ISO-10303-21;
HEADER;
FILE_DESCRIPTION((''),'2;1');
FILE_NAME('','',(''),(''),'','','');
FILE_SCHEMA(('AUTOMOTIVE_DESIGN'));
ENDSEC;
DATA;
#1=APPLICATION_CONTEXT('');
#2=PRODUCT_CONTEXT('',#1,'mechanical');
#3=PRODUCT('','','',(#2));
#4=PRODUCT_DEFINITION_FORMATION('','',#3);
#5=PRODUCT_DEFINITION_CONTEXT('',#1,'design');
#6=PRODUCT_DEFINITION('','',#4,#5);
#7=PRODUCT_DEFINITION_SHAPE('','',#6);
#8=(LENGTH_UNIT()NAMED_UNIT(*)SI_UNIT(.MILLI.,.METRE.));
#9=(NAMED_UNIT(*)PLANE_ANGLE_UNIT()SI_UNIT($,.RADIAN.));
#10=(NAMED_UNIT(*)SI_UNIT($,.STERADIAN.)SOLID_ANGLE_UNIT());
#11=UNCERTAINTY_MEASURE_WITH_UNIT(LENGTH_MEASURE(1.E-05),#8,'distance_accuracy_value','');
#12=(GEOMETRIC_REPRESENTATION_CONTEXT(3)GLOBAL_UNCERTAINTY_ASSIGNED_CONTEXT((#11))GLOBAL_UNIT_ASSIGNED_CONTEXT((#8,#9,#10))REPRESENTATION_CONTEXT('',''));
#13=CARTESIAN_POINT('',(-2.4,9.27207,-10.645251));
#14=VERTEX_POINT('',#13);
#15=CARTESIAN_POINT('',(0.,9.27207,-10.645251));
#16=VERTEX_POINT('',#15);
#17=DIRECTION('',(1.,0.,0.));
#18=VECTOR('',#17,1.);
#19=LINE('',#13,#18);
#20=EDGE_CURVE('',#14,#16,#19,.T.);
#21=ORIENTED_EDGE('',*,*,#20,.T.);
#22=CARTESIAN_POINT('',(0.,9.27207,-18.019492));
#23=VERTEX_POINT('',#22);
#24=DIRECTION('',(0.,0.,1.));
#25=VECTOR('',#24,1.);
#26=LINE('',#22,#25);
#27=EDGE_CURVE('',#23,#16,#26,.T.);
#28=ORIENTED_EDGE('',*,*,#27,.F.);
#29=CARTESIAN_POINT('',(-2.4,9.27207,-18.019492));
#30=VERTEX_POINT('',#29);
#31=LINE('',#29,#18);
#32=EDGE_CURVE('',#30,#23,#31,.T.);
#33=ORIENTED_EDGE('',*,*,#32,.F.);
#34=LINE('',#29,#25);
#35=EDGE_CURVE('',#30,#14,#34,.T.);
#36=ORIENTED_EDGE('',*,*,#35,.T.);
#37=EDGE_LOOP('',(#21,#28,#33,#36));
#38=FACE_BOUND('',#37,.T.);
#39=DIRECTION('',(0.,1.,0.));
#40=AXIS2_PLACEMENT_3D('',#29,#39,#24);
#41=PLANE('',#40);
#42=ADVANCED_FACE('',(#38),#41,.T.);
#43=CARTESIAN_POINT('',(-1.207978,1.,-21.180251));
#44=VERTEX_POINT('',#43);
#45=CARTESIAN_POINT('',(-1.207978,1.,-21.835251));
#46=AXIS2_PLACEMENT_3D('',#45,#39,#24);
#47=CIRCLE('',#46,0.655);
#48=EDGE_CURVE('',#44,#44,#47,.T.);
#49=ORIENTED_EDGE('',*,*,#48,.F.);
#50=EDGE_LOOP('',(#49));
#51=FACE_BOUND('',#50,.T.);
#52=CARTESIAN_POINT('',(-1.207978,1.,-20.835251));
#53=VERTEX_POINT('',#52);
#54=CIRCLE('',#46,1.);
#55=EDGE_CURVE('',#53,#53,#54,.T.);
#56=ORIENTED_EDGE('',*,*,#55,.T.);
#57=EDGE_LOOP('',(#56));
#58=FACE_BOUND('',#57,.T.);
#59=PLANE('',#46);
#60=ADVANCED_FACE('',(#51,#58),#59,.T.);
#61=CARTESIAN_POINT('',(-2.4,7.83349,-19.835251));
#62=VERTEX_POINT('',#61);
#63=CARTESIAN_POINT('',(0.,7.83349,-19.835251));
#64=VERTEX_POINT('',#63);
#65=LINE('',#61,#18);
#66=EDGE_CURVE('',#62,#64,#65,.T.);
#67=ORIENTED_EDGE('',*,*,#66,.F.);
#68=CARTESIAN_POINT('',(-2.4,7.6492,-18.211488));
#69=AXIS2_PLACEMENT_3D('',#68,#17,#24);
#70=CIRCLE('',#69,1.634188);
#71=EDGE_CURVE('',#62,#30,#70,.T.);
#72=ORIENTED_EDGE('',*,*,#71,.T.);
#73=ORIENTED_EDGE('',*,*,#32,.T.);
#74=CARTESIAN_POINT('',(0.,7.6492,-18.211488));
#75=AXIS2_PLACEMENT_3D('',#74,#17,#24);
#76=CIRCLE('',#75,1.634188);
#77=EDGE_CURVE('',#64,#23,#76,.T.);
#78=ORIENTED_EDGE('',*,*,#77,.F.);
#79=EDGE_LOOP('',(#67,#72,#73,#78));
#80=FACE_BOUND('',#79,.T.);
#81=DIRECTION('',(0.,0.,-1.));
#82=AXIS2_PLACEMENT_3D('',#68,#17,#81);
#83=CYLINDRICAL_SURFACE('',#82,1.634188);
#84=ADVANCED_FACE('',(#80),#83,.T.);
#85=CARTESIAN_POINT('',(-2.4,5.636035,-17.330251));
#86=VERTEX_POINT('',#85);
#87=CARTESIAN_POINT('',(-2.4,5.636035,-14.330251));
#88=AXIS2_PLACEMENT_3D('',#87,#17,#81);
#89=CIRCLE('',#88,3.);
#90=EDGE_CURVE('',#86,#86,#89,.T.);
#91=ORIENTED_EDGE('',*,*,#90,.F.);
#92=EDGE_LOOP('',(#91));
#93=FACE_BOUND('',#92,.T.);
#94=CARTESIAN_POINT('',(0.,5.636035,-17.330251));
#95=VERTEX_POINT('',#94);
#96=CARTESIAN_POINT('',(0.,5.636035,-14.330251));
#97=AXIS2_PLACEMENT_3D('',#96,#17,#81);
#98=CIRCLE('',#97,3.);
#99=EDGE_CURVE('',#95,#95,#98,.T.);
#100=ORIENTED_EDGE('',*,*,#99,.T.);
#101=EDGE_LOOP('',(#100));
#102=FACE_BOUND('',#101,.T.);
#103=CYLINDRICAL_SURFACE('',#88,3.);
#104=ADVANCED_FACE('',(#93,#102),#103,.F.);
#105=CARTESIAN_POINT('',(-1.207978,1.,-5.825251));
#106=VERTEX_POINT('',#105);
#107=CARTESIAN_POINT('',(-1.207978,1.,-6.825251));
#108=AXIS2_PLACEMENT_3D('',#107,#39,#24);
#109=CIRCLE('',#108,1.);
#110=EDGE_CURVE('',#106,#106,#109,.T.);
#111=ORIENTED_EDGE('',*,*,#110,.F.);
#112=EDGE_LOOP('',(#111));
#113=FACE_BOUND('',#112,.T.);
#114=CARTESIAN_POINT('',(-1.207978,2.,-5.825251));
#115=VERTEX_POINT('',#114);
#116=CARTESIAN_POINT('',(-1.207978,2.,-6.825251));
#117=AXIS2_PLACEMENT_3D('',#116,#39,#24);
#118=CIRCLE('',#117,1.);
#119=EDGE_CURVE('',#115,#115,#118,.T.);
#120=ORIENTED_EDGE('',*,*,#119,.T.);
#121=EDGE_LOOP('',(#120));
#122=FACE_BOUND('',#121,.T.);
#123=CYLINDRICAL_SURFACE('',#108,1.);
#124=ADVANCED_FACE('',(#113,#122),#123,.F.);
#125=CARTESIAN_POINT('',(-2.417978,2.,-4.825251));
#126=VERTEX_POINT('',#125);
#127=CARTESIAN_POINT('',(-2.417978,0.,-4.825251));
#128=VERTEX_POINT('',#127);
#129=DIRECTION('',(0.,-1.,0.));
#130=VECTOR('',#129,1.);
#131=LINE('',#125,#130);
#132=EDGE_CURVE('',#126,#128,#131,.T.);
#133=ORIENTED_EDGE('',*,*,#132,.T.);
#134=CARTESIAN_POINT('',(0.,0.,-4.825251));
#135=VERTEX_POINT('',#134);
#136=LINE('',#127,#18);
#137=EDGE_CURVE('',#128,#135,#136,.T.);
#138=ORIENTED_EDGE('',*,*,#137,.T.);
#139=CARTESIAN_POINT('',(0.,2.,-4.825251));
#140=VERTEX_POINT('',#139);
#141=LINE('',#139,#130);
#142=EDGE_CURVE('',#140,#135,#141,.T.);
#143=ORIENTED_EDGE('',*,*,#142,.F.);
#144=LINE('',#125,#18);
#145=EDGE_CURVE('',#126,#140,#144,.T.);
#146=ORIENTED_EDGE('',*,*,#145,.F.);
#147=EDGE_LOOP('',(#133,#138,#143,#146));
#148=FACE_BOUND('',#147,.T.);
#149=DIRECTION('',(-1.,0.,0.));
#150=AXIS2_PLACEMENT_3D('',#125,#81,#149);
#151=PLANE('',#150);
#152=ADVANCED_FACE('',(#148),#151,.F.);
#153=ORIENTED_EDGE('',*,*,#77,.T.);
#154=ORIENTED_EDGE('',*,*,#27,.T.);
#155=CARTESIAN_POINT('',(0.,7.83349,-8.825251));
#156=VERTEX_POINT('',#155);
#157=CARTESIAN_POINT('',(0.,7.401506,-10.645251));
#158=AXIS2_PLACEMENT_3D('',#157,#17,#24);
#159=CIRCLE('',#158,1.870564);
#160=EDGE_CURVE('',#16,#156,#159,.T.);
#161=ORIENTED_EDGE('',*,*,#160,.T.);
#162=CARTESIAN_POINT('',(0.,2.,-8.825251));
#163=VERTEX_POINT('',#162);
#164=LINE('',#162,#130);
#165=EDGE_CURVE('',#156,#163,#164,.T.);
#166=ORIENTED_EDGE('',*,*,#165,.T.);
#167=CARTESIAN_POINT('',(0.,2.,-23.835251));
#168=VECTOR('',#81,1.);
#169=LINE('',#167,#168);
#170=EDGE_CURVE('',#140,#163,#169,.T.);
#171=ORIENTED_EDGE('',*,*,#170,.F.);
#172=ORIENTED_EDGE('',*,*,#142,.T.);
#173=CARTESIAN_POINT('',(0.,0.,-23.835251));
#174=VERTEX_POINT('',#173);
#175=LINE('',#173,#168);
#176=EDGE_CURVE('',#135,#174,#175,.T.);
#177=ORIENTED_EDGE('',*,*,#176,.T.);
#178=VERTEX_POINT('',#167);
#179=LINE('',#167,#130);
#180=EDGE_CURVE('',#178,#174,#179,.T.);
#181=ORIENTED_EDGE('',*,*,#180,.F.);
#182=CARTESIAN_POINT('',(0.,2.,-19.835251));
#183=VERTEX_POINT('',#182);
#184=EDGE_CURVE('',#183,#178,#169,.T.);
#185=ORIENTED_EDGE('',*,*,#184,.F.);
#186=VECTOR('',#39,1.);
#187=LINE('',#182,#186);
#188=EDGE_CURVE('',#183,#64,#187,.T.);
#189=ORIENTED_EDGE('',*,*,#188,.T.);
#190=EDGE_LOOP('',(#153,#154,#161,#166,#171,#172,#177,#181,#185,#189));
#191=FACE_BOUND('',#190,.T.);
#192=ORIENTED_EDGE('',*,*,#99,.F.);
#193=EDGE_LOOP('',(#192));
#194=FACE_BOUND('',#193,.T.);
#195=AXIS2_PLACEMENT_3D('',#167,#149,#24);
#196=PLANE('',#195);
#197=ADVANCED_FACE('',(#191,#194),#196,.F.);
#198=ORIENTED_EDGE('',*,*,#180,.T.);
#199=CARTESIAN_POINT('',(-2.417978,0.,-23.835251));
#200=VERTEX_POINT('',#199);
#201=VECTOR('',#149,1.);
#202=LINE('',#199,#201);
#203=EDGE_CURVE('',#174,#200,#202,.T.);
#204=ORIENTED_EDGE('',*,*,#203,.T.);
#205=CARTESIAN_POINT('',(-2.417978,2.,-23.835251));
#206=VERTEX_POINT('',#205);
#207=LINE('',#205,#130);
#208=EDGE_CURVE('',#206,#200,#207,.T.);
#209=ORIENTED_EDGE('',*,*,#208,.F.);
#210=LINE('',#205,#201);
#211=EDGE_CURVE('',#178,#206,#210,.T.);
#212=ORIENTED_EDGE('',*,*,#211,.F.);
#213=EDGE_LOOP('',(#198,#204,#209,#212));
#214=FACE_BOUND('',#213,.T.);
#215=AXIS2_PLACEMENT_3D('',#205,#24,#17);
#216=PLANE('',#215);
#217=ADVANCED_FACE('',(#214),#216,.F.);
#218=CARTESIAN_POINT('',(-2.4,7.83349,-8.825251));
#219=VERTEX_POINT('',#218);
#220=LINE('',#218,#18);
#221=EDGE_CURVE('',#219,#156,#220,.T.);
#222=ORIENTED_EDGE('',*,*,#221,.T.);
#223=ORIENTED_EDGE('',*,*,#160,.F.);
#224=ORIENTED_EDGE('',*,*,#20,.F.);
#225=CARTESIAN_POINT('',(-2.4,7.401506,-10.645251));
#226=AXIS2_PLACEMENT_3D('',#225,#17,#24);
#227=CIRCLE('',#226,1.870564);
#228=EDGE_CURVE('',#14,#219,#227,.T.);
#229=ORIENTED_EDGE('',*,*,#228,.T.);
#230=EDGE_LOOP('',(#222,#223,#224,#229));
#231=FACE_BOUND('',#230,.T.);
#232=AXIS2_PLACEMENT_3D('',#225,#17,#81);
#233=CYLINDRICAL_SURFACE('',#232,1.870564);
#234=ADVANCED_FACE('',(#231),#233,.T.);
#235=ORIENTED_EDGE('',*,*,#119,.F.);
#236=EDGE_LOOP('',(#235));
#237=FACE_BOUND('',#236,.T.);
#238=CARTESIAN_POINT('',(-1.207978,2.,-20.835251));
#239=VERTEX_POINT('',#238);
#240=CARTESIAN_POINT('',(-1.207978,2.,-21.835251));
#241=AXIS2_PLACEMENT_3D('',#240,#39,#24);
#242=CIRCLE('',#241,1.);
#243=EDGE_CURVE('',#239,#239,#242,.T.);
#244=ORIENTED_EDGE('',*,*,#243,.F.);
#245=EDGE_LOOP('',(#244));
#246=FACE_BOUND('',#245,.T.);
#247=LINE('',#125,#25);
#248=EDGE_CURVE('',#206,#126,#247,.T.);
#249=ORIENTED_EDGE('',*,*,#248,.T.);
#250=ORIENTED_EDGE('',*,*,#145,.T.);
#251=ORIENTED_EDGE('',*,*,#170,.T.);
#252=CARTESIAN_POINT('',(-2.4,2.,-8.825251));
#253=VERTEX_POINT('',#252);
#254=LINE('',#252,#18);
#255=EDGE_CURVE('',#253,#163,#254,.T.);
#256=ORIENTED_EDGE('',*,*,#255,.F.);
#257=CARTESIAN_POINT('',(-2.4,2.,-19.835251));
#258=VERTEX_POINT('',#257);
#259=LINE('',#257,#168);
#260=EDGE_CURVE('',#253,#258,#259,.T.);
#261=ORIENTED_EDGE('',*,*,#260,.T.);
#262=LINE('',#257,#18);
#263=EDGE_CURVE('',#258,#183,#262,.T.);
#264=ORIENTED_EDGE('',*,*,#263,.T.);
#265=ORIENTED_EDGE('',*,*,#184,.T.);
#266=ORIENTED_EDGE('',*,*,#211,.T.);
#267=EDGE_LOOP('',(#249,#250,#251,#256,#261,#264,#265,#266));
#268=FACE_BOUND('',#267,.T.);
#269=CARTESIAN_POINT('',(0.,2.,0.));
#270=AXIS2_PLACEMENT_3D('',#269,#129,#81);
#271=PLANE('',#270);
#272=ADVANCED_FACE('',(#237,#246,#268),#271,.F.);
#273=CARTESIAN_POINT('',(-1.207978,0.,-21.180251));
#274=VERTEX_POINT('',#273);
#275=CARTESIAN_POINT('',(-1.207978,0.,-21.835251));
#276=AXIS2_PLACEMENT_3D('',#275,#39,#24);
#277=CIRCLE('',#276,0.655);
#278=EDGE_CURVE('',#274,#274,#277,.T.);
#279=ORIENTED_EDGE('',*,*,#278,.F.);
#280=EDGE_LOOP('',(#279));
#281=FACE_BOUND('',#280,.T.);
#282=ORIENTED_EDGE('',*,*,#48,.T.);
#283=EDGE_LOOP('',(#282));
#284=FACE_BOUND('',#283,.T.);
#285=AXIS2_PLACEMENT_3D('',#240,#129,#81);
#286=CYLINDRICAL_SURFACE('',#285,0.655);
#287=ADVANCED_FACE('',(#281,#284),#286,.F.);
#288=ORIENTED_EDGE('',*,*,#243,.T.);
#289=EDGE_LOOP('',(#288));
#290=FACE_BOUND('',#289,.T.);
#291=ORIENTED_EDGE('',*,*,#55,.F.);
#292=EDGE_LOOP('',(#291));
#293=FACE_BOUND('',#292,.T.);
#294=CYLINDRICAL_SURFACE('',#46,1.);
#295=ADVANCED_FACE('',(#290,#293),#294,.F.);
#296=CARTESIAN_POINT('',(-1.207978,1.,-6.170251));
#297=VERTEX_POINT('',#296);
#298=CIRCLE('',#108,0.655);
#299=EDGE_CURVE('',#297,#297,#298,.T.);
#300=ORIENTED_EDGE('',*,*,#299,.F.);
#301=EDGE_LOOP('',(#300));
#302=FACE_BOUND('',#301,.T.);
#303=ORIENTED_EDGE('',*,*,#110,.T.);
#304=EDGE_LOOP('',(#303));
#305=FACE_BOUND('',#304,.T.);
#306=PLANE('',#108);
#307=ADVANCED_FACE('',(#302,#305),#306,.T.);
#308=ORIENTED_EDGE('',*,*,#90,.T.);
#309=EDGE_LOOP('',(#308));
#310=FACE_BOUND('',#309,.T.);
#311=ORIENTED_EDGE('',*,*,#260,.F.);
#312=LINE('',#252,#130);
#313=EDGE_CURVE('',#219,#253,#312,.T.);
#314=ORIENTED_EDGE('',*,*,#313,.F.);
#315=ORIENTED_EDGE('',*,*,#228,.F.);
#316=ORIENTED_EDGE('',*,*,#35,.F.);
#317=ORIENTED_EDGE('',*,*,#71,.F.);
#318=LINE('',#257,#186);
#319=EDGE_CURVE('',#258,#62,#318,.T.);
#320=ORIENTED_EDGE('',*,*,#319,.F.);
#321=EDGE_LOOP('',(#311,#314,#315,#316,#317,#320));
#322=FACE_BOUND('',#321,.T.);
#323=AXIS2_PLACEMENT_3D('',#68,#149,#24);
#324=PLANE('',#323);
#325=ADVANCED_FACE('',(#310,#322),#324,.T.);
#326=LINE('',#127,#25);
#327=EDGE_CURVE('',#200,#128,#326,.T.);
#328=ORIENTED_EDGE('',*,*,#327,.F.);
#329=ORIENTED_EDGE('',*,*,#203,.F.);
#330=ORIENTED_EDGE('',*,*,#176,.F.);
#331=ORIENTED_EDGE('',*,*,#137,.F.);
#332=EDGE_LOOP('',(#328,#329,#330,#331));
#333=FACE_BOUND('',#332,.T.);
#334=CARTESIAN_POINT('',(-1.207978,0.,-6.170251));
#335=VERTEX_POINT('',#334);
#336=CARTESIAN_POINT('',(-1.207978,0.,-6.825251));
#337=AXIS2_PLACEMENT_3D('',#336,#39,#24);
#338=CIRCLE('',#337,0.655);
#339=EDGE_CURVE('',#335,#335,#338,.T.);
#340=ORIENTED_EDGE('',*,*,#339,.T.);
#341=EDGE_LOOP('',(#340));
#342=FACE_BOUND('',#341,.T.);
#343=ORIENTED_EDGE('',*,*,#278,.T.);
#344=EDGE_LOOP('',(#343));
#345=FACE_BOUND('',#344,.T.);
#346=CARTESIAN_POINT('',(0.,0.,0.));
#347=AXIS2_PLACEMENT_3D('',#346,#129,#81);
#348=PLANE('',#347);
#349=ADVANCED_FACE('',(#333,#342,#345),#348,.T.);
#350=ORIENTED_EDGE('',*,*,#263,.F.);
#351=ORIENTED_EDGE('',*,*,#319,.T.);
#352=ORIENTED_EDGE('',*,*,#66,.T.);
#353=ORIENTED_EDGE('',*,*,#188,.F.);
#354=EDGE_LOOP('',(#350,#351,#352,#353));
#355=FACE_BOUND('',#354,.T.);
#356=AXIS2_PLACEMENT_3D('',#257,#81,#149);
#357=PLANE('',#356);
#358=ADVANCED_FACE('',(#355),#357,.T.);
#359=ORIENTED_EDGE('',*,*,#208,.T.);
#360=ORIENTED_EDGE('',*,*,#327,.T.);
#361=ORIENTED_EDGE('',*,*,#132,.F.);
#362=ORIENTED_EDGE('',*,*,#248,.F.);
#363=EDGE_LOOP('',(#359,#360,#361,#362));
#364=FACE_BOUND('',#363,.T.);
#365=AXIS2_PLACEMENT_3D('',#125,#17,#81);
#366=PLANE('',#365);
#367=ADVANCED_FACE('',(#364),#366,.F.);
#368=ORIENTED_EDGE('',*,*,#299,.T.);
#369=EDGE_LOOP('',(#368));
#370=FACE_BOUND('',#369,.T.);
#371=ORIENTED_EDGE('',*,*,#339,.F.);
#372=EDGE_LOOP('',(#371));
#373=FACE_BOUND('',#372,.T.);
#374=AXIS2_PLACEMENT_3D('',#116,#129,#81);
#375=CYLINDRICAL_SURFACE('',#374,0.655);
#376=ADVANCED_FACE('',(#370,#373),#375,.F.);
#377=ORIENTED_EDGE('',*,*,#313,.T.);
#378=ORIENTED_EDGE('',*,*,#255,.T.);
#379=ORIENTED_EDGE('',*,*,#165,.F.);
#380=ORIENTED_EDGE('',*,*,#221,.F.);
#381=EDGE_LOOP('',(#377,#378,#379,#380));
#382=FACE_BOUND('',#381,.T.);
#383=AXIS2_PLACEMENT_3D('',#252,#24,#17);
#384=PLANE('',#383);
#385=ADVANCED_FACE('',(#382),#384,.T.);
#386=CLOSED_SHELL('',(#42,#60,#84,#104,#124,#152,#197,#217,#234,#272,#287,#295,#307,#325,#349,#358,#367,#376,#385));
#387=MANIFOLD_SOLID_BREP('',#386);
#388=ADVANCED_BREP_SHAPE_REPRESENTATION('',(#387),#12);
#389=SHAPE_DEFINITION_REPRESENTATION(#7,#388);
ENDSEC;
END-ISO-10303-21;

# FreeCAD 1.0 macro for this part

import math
import FreeCAD as App
import Part
import Sketcher
Q = App.Units.Quantity

doc = App.newDocument("Part")
body = doc.addObject("PartDesign::Body", "Body")

sketch1 = body.newObject("Sketcher::SketchObject", "Sketch")
sketch1.AttachmentSupport = (doc.getObject("XZ_Plane"), [""])
sketch1.MapMode = "FlatFace"
sketch1.addGeometry([
    Part.LineSegment(App.Vector(-2.417978, -23.835251, 0), App.Vector(-2.417978, -4.825251, 0)),
    Part.LineSegment(App.Vector(-2.417978, -4.825251, 0), App.Vector(0, -4.825251, 0)),
    Part.LineSegment(App.Vector(0, -4.825251, 0), App.Vector(0, -23.835251, 0)),
    Part.LineSegment(App.Vector(0, -23.835251, 0), App.Vector(-2.417978, -23.835251, 0)),
    Part.Circle(App.Vector(-1.207978, -6.825251, 0), App.Vector(0, 0, 1), 0.655),
    Part.Circle(App.Vector(-1.207978, -21.835251, 0), App.Vector(0, 0, 1), 0.655),
], False)
sketch1.addConstraint([
    Sketcher.Constraint("Coincident", 0, 2, 1, 1),
    Sketcher.Constraint("Coincident", 1, 2, 2, 1),
    Sketcher.Constraint("Coincident", 2, 2, 3, 1),
    Sketcher.Constraint("Coincident", 3, 2, 0, 1),
    Sketcher.Constraint("Vertical", 0),
    Sketcher.Constraint("Horizontal", 1),
    Sketcher.Constraint("Vertical", 2),
    Sketcher.Constraint("Horizontal", 3),
    Sketcher.Constraint("Equal", 4, 5),
    Sketcher.Constraint("PointOnObject", 1, 2, -2),
    Sketcher.Constraint("Vertical", 4, 3, 5, 3),
    Sketcher.Constraint("Diameter", 4, Q("1.31 mm")),
    Sketcher.Constraint("DistanceY", 4, 3, 0, 2, Q("2 mm")),
    Sketcher.Constraint("DistanceY", 2, 2, 5, 3, Q("2 mm")),
    Sketcher.Constraint("DistanceY", 0, 1, 0, 2, Q("19.01 mm")),
    Sketcher.Constraint("DistanceX", 0, 2, 4, 3, Q("1.21 mm")),
    Sketcher.Constraint("DistanceX", 1, 1, 1, 2, Q("2.417978 mm")),
    Sketcher.Constraint("DistanceY", 4, 3, -1, 1, Q("6.825251 mm")),
])
pad1 = body.newObject("PartDesign::Pad", "Pad")
pad1.Profile = sketch1
pad1.Length = 2
pad1.Reversed = True

sketch2 = body.newObject("Sketcher::SketchObject", "Sketch001")
sketch2.AttachmentSupport = (doc.getObject("XZ_Plane"), [""])
sketch2.MapMode = "FlatFace"
sketch2.AttachmentOffset = App.Placement(App.Vector(0, 0, -2), App.Rotation())
sketch2.addGeometry([
    Part.Circle(App.Vector(-1.207978, -21.835251, 0), App.Vector(0, 0, 1), 1),
    Part.Circle(App.Vector(-1.207978, -6.825251, 0), App.Vector(0, 0, 1), 1),
], False)
sketch2.addConstraint([
    Sketcher.Constraint("Equal", 0, 1),
    Sketcher.Constraint("Vertical", 0, 3, 1, 3),
    Sketcher.Constraint("Diameter", 0, Q("2 mm")),
    Sketcher.Constraint("DistanceY", 0, 3, 1, 3, Q("15.01 mm")),
    Sketcher.Constraint("DistanceX", 0, 3, -1, 1, Q("1.207978 mm")),
    Sketcher.Constraint("DistanceY", 0, 3, -1, 1, Q("21.835251 mm")),
])
pocket1 = body.newObject("PartDesign::Pocket", "Pocket")
pocket1.Profile = sketch2
pocket1.Length = 1
pocket1.Reversed = True

sketch3 = body.newObject("Sketcher::SketchObject", "Sketch002")
sketch3.AttachmentSupport = (doc.getObject("YZ_Plane"), [""])
sketch3.MapMode = "FlatFace"
sketch3.addGeometry([
    Part.LineSegment(App.Vector(2, -8.825251, 0), App.Vector(2, -19.835251, 0)),
    Part.LineSegment(App.Vector(2, -19.835251, 0), App.Vector(7.83349, -19.835251, 0)),
    Part.ArcOfCircle(Part.Circle(App.Vector(7.6492, -18.211488, 0), App.Vector(0, 0, 1), 1.634188), math.radians(-83.524906), math.radians(6.747091)),
    Part.LineSegment(App.Vector(9.27207, -18.019492, 0), App.Vector(9.27207, -10.645251, 0)),
    Part.ArcOfCircle(Part.Circle(App.Vector(7.401506, -10.645251, 0), App.Vector(0, 0, 1), 1.870564), math.radians(0), math.radians(76.64772)),
    Part.LineSegment(App.Vector(7.83349, -8.825251, 0), App.Vector(2, -8.825251, 0)),
    Part.Circle(App.Vector(5.636035, -14.330251, 0), App.Vector(0, 0, 1), 3),
], False)
sketch3.addConstraint([
    Sketcher.Constraint("Coincident", 0, 2, 1, 1),
    Sketcher.Constraint("Coincident", 1, 2, 2, 1),
    Sketcher.Constraint("Coincident", 2, 2, 3, 1),
    Sketcher.Constraint("Tangent", 3, 2, 4, 1),
    Sketcher.Constraint("Coincident", 4, 2, 5, 1),
    Sketcher.Constraint("Coincident", 5, 2, 0, 1),
    Sketcher.Constraint("Vertical", 0),
    Sketcher.Constraint("Horizontal", 1),
    Sketcher.Constraint("Vertical", 3),
    Sketcher.Constraint("Horizontal", 5),
    Sketcher.Constraint("Vertical", 1, 2, 4, 2),
    Sketcher.Constraint("Diameter", 6, Q("6 mm")),
    Sketcher.Constraint("DistanceX", -1, 1, 0, 2, Q("2 mm")),
    Sketcher.Constraint("DistanceY", 0, 2, 0, 1, Q("11.01 mm")),
    Sketcher.Constraint("DistanceY", 0, 2, 4, 3, Q("9.19 mm")),
    Sketcher.Constraint("Radius", 2, Q("1.634188 mm")),
    Sketcher.Constraint("Radius", 4, Q("1.870564 mm")),
    Sketcher.Constraint("DistanceY", 6, 3, 4, 3, Q("3.685 mm")),
    Sketcher.Constraint("DistanceX", 1, 1, 1, 2, Q("5.83349 mm")),
    Sketcher.Constraint("DistanceY", 3, 1, 3, 2, Q("7.374241 mm")),
    Sketcher.Constraint("DistanceY", 2, 3, -1, 1, Q("18.211488 mm")),
    Sketcher.Constraint("DistanceX", 6, 3, 4, 3, Q("1.765471 mm")),
])
pad2 = body.newObject("PartDesign::Pad", "Pad001")
pad2.Profile = sketch3
pad2.Length = 2.4
pad2.Reversed = True

doc.recompute()
